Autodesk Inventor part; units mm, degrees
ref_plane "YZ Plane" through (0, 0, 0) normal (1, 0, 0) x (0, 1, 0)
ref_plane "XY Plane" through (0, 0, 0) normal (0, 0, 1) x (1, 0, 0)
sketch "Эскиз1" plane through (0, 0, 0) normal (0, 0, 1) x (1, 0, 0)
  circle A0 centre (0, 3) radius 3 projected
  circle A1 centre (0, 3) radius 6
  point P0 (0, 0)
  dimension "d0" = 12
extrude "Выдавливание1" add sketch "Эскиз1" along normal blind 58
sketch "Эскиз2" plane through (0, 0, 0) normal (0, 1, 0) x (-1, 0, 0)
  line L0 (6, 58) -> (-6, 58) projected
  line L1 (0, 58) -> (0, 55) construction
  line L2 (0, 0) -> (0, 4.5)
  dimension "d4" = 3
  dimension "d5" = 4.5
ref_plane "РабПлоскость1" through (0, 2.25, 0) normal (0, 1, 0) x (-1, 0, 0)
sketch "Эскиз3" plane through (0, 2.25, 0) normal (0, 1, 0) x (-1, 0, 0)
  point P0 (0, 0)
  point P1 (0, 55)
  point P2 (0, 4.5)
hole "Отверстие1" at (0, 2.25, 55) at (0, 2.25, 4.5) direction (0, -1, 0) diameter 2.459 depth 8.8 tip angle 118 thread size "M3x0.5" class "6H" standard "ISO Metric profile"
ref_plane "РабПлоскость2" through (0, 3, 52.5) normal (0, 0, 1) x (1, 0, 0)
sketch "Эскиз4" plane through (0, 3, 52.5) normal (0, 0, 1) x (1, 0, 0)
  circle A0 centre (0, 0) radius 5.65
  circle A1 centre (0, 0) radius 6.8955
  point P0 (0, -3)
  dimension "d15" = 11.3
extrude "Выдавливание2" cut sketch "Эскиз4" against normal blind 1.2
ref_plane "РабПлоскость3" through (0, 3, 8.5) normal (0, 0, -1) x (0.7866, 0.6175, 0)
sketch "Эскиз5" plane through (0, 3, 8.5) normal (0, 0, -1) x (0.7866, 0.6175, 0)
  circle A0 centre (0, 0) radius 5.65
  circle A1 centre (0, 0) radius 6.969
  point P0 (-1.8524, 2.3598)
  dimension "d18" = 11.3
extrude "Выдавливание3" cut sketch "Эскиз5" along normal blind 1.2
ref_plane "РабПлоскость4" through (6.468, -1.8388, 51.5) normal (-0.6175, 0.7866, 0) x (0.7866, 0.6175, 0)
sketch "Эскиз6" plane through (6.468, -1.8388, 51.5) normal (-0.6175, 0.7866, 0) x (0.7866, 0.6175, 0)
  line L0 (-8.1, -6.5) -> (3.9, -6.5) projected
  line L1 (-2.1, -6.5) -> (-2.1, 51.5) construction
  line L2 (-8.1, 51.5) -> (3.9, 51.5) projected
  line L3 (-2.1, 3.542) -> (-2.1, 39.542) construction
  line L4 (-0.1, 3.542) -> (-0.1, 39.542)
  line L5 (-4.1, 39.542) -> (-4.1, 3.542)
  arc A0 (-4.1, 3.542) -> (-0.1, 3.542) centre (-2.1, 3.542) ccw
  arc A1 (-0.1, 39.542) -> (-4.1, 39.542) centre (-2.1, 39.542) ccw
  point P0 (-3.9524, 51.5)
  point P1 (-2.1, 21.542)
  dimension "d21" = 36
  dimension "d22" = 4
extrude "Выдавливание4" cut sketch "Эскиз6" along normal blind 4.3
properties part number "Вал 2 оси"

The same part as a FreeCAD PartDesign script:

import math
import FreeCAD as App
import Part
import Sketcher

V = App.Vector

doc = App.newDocument("Part")
body = doc.addObject("PartDesign::Body", "Body")

sketch1 = body.newObject("Sketcher::SketchObject", "Sketch")
sketch1.AttachmentSupport = (doc.getObject("XY_Plane"), [""])
sketch1.MapMode = "FlatFace"
sketch1.addGeometry([
    Part.Circle(V(0, 3, 0), V(0, 0, 1), 6),
    Part.Circle(V(0, 3, 0), V(0, 0, 1), 3),
], False)
sketch1.addConstraint([
    Sketcher.Constraint("Coincident", 1, 3, 0, 3),
    Sketcher.Constraint("PointOnObject", 0, 3, -2),
    Sketcher.Constraint("Diameter", 0, 12.0),
    Sketcher.Constraint("Diameter", 1, 6.0),
    Sketcher.Constraint("DistanceY", -1, 1, 0, 3, 3.0),
])
pad1 = body.newObject("PartDesign::Pad", "Pad")
pad1.Profile = sketch1
pad1.Length = 58

sketch2 = body.newObject("Sketcher::SketchObject", "Sketch001")
sketch2.AttachmentSupport = (doc.getObject("XZ_Plane"), [""])
sketch2.MapMode = "FlatFace"
sketch2.AttachmentOffset = App.Placement(V(0, 0, -2.25), App.Rotation())
sketch2.addGeometry([
    Part.Circle(V(0, 55, 0), V(0, 0, 1), 1.2),
    Part.Circle(V(0, 4.5, 0), V(0, 0, 1), 1.2),
], False)
sketch2.addConstraint([
    Sketcher.Constraint("Equal", 0, 1),
    Sketcher.Constraint("PointOnObject", 0, 3, -2),
    Sketcher.Constraint("PointOnObject", 1, 3, -2),
    Sketcher.Constraint("Diameter", 0, 2.459),
    Sketcher.Constraint("DistanceY", -1, 1, 0, 3, 55.0),
    Sketcher.Constraint("DistanceY", -1, 1, 1, 3, 4.5),
])
doc.recompute()
hole = body.newObject("PartDesign::Hole", "Hole")
hole.Profile = sketch2
hole.ThreadType = "None"
hole.Diameter = 2.459
hole.DepthType = "Dimension"
hole.Depth = 8.8
hole.DrillPoint = "Angled"
hole.DrillPointAngle = 118
hole.Reversed = True

sketch3 = body.newObject("Sketcher::SketchObject", "Sketch002")
sketch3.AttachmentSupport = (doc.getObject("XY_Plane"), [""])
sketch3.MapMode = "FlatFace"
sketch3.AttachmentOffset = App.Placement(V(0, 0, 52.5), App.Rotation())
sketch3.addGeometry([
    Part.Circle(V(0, 3, 0), V(0, 0, 1), 7),
    Part.Circle(V(0, 3, 0), V(0, 0, 1), 6),
], False)
sketch3.addConstraint([
    Sketcher.Constraint("Coincident", 1, 3, 0, 3),
    Sketcher.Constraint("PointOnObject", 0, 3, -2),
    Sketcher.Constraint("Diameter", 1, 11.3),
    Sketcher.Constraint("Diameter", 0, 13.791),
    Sketcher.Constraint("DistanceY", -1, 1, 0, 3, 3.0),
])
pocket1 = body.newObject("PartDesign::Pocket", "Pocket")
pocket1.Profile = sketch3
pocket1.Length = 1.2

sketch4 = body.newObject("Sketcher::SketchObject", "Sketch003")
sketch4.AttachmentSupport = (doc.getObject("XY_Plane"), [""])
sketch4.MapMode = "FlatFace"
sketch4.AttachmentOffset = App.Placement(V(0, 0, 8.5), App.Rotation())
sketch4.addGeometry([
    Part.Circle(V(0, 3, 0), V(0, 0, 1), 7),
    Part.Circle(V(0, 3, 0), V(0, 0, 1), 6),
], False)
sketch4.addConstraint([
    Sketcher.Constraint("Coincident", 1, 3, 0, 3),
    Sketcher.Constraint("PointOnObject", 0, 3, -2),
    Sketcher.Constraint("Diameter", 1, 11.3),
    Sketcher.Constraint("Diameter", 0, 13.938),
    Sketcher.Constraint("DistanceY", -1, 1, 0, 3, 3.0),
])
pocket2 = body.newObject("PartDesign::Pocket", "Pocket001")
pocket2.Profile = sketch4
pocket2.Length = 1.2

sketch5 = body.newObject("Sketcher::SketchObject", "Sketch004")
sketch5.Placement = App.Placement(V(6.468, -1.8388, 51.5), App.Rotation(V(0.786581984, 0.617485857, 0), V(0, 0, -1.000000001), V(-0.617485857, 0.786581984, 0), "ZXY"))
sketch5.addGeometry([
    Part.ArcOfCircle(Part.Circle(V(-2.1, 3.5, 0), V(0, 0, 1), 2), math.radians(180), math.radians(360)),
    Part.LineSegment(V(-0.1, 3.5, 0), V(-0.1, 39.5, 0)),
    Part.ArcOfCircle(Part.Circle(V(-2.1, 39.5, 0), V(0, 0, 1), 2), math.radians(0), math.radians(180)),
    Part.LineSegment(V(-4.1, 39.5, 0), V(-4.1, 3.5, 0)),
], False)
sketch5.addConstraint([
    Sketcher.Constraint("Tangent", 0, 2, 1, 1),
    Sketcher.Constraint("Tangent", 1, 2, 2, 1),
    Sketcher.Constraint("Tangent", 2, 2, 3, 1),
    Sketcher.Constraint("Tangent", 3, 2, 0, 1),
    Sketcher.Constraint("Vertical", 1),
    Sketcher.Constraint("Vertical", 3),
    Sketcher.Constraint("Radius", 0, 2.0),
    Sketcher.Constraint("DistanceY", 1, 1, 1, 2, 36.0),
    Sketcher.Constraint("DistanceX", 0, 3, -1, 1, 2.1),
    Sketcher.Constraint("DistanceY", -1, 1, 0, 3, 3.542),
])
pocket3 = body.newObject("PartDesign::Pocket", "Pocket002")
pocket3.Profile = sketch5
pocket3.Length = 4.3
pocket3.Reversed = True

doc.recompute()
